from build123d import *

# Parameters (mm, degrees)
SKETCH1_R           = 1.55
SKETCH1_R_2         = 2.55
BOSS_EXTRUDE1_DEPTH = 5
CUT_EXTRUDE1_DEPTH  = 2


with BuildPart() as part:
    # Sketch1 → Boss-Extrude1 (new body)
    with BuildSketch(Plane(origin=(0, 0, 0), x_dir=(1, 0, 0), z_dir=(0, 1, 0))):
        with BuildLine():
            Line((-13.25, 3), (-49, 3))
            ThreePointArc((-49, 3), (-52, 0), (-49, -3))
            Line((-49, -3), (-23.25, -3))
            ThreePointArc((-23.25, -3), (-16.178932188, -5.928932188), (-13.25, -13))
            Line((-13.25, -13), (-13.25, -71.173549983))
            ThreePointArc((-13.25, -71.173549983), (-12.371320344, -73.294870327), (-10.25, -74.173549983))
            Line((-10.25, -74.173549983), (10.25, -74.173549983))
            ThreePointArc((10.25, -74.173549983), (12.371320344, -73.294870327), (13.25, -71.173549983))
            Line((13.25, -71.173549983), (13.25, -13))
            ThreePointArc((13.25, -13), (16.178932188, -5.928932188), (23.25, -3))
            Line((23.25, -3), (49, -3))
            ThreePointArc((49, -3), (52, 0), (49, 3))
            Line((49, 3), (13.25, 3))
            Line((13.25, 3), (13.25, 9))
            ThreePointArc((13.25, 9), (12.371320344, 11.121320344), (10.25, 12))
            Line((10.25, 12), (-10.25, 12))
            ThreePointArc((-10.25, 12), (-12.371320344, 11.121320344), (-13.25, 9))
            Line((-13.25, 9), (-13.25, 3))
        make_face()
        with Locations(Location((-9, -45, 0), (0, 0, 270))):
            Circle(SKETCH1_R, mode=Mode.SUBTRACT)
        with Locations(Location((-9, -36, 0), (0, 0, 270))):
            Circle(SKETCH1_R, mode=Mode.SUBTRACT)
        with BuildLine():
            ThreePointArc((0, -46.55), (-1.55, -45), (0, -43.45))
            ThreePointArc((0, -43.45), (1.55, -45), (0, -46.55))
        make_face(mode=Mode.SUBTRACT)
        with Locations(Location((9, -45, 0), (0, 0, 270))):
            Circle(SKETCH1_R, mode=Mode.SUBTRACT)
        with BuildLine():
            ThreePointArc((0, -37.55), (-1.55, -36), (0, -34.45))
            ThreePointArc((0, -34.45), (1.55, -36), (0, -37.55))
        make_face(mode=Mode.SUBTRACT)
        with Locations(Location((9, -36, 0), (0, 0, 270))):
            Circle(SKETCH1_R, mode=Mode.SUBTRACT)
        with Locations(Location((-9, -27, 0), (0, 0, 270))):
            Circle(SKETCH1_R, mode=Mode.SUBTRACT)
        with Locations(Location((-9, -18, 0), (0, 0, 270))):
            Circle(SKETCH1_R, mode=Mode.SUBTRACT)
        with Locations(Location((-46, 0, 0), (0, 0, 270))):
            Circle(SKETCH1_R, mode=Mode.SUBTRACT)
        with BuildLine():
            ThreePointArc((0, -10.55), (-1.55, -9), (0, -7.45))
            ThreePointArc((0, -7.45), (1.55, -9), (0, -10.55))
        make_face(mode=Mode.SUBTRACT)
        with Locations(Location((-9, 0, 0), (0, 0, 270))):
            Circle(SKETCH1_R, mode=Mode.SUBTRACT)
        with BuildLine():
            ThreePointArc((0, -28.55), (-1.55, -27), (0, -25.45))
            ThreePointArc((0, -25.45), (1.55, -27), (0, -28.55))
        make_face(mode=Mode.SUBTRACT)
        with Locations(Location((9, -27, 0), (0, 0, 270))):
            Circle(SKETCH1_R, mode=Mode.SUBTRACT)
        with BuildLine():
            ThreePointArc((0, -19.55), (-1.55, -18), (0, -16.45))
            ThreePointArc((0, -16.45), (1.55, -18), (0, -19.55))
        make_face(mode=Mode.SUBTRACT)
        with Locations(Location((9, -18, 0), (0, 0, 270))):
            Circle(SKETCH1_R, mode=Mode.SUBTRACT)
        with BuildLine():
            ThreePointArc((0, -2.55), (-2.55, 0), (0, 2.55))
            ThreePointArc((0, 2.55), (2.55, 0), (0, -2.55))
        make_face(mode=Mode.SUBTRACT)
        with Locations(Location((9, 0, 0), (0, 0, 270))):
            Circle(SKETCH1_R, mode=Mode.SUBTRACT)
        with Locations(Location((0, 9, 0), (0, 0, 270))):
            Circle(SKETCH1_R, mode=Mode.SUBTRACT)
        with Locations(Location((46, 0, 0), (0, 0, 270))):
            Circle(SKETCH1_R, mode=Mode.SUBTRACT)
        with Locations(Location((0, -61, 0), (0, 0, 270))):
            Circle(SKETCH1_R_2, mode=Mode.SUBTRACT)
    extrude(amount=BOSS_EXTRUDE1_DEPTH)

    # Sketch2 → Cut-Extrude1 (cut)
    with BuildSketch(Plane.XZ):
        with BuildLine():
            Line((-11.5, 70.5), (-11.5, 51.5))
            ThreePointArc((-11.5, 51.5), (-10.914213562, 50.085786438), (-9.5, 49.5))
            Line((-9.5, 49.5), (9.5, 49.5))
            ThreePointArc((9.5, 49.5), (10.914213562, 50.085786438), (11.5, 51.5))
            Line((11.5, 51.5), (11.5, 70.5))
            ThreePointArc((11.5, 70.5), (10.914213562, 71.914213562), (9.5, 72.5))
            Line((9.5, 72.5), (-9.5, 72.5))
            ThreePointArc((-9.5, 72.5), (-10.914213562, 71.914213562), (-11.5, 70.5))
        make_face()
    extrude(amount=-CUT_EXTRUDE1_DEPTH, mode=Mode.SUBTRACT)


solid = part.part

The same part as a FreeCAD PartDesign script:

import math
import FreeCAD as App
import Part
import Sketcher

V = App.Vector

doc = App.newDocument("Part")
body = doc.addObject("PartDesign::Body", "Body")

# Sketch on XZ plane
sketch1 = doc.addObject("Sketcher::SketchObject", "Sketch")
body.addObject(sketch1)
sketch1.AttachmentSupport = (doc.XZ_Plane, [""])
sketch1.MapMode = "FlatFace"
sketch1.addGeometry([
    Part.LineSegment(V(-13.2, -3, 0), V(-49, -3, 0)),  # 0
    Part.ArcOfCircle(Part.Circle(V(-49, 0, 0), V(0, 0, 1), 3), math.radians(90), math.radians(270)),  # 1
    Part.LineSegment(V(-49, 3, 0), V(-23.2, 3, 0)),  # 2
    Part.ArcOfCircle(Part.Circle(V(-23.2, 13, 0), V(0, 0, 1), 10), math.radians(-90), math.radians(0)),  # 3
    Part.LineSegment(V(-13.2, 13, 0), V(-13.2, 71.2, 0)),  # 4
    Part.ArcOfCircle(Part.Circle(V(-10.3, 71.2, 0), V(0, 0, 1), 3), math.radians(90), math.radians(180)),  # 5
    Part.LineSegment(V(-10.2, 74.2, 0), V(10.2, 74.2, 0)),  # 6
    Part.ArcOfCircle(Part.Circle(V(10.3, 71.2, 0), V(0, 0, 1), 3), math.radians(0), math.radians(90)),  # 7
    Part.LineSegment(V(13.2, 71.2, 0), V(13.2, 13, 0)),  # 8
    Part.ArcOfCircle(Part.Circle(V(23.2, 13, 0), V(0, 0, 1), 10), math.radians(180), math.radians(270)),  # 9
    Part.LineSegment(V(23.2, 3, 0), V(49, 3, 0)),  # 10
    Part.ArcOfCircle(Part.Circle(V(49, 0, 0), V(0, 0, 1), 3), math.radians(-90), math.radians(90)),  # 11
    Part.LineSegment(V(49, -3, 0), V(13.2, -3, 0)),  # 12
    Part.LineSegment(V(13.2, -3, 0), V(13.2, -9, 0)),  # 13
    Part.ArcOfCircle(Part.Circle(V(10.3, -9, 0), V(0, 0, 1), 3), math.radians(-90), math.radians(0)),  # 14
    Part.LineSegment(V(10.2, -12, 0), V(-10.2, -12, 0)),  # 15
    Part.ArcOfCircle(Part.Circle(V(-10.3, -9, 0), V(0, 0, 1), 3), math.radians(180), math.radians(270)),  # 16
    Part.LineSegment(V(-13.2, -9, 0), V(-13.2, -3, 0)),  # 17
    Part.Circle(V(-9, 45, 0), V(0, 0, 1), 1.6),  # 18
    Part.Circle(V(-9, 36, 0), V(0, 0, 1), 1.6),  # 19
    Part.Circle(V(-9, 27, 0), V(0, 0, 1), 1.6),  # 20
    Part.Circle(V(0, 61, 0), V(0, 0, 1), 2.5),  # 21
    Part.Circle(V(0, 45, 0), V(0, 0, 1), 1.6),  # 22
    Part.Circle(V(9, 45, 0), V(0, 0, 1), 1.6),  # 23
    Part.Circle(V(0, 36, 0), V(0, 0, 1), 1.6),  # 24
    Part.Circle(V(9, 36, 0), V(0, 0, 1), 1.6),  # 25
    Part.Circle(V(0, 27, 0), V(0, 0, 1), 1.6),  # 26
    Part.Circle(V(9, 27, 0), V(0, 0, 1), 1.6),  # 27
    Part.Circle(V(-9, 18, 0), V(0, 0, 1), 1.6),  # 28
    Part.Circle(V(-46, 0, 0), V(0, 0, 1), 1.6),  # 29
    Part.Circle(V(-9, 0, 0), V(0, 0, 1), 1.6),  # 30
    Part.Circle(V(0, 18, 0), V(0, 0, 1), 1.6),  # 31
    Part.Circle(V(9, 18, 0), V(0, 0, 1), 1.6),  # 32
    Part.Circle(V(0, 9, 0), V(0, 0, 1), 1.6),  # 33
    Part.Circle(V(0, 0, 0), V(0, 0, 1), 2.5),  # 34
    Part.Circle(V(9, 0, 0), V(0, 0, 1), 1.6),  # 35
    Part.Circle(V(0, -9, 0), V(0, 0, 1), 1.6),  # 36
    Part.Circle(V(46, 0, 0), V(0, 0, 1), 1.6),  # 37
], False)
sketch1.addConstraint([
    Sketcher.Constraint("Tangent", 0, 2, 1, 2),
    Sketcher.Constraint("Tangent", 1, 1, 2, 1),
    Sketcher.Constraint("Tangent", 2, 2, 3, 1),
    Sketcher.Constraint("Tangent", 3, 2, 4, 1),
    Sketcher.Constraint("Tangent", 4, 2, 5, 2),
    Sketcher.Constraint("Tangent", 5, 1, 6, 1),
    Sketcher.Constraint("Tangent", 6, 2, 7, 2),
    Sketcher.Constraint("Tangent", 7, 1, 8, 1),
    Sketcher.Constraint("Tangent", 8, 2, 9, 1),
    Sketcher.Constraint("Tangent", 9, 2, 10, 1),
    Sketcher.Constraint("Tangent", 10, 2, 11, 2),
    Sketcher.Constraint("Tangent", 11, 1, 12, 1),
    Sketcher.Constraint("Coincident", 12, 2, 13, 1),
    Sketcher.Constraint("Tangent", 13, 2, 14, 2),
    Sketcher.Constraint("Tangent", 14, 1, 15, 1),
    Sketcher.Constraint("Tangent", 15, 2, 16, 2),
    Sketcher.Constraint("Tangent", 16, 1, 17, 1),
    Sketcher.Constraint("Coincident", 17, 2, 0, 1),
    Sketcher.Constraint("Horizontal", 0),
    Sketcher.Constraint("Horizontal", 2),
    Sketcher.Constraint("Vertical", 4),
    Sketcher.Constraint("Horizontal", 6),
    Sketcher.Constraint("Vertical", 8),
    Sketcher.Constraint("Horizontal", 10),
    Sketcher.Constraint("Horizontal", 12),
    Sketcher.Constraint("Vertical", 13),
    Sketcher.Constraint("Horizontal", 15),
    Sketcher.Constraint("Vertical", 17),
    Sketcher.Constraint("Coincident", 34, 3, -1, 1),
    Sketcher.Constraint("Equal", 1, 5),
    Sketcher.Constraint("Equal", 5, 7),
    Sketcher.Constraint("Equal", 3, 9),
    Sketcher.Constraint("Equal", 7, 11),
    Sketcher.Constraint("Equal", 11, 14),
    Sketcher.Constraint("Equal", 14, 16),
    Sketcher.Constraint("Equal", 18, 19),
    Sketcher.Constraint("Equal", 19, 20),
    Sketcher.Constraint("Equal", 20, 22),
    Sketcher.Constraint("Equal", 22, 23),
    Sketcher.Constraint("Equal", 23, 24),
    Sketcher.Constraint("Equal", 24, 25),
    Sketcher.Constraint("Equal", 25, 26),
    Sketcher.Constraint("Equal", 26, 27),
    Sketcher.Constraint("Equal", 27, 28),
    Sketcher.Constraint("Equal", 28, 29),
    Sketcher.Constraint("Equal", 29, 30),
    Sketcher.Constraint("Equal", 30, 31),
    Sketcher.Constraint("Equal", 31, 32),
    Sketcher.Constraint("Equal", 32, 33),
    Sketcher.Constraint("Equal", 21, 34),
    Sketcher.Constraint("Equal", 33, 35),
    Sketcher.Constraint("Equal", 35, 36),
    Sketcher.Constraint("Equal", 36, 37),
    Sketcher.Constraint("Symmetric", 1, 3, 11, 3, -1, 1),
    Sketcher.Constraint("Symmetric", 30, 3, 35, 3, -1, 1),
    Sketcher.Constraint("Symmetric", 33, 3, 36, 3, -1, 1),
    Sketcher.Constraint("Symmetric", 29, 3, 37, 3, -1, 1),
    Sketcher.Constraint("Symmetric", 3, 3, 9, 3, -2),
    Sketcher.Constraint("Symmetric", 18, 3, 23, 3, -2),
    Sketcher.Constraint("Symmetric", 19, 3, 25, 3, -2),
    Sketcher.Constraint("Symmetric", 20, 3, 27, 3, -2),
    Sketcher.Constraint("Symmetric", 28, 3, 32, 3, -2),
    Sketcher.Constraint("PointOnObject", 21, 3, -2),
    Sketcher.Constraint("PointOnObject", 22, 3, -2),
    Sketcher.Constraint("PointOnObject", 24, 3, -2),
    Sketcher.Constraint("PointOnObject", 26, 3, -2),
    Sketcher.Constraint("PointOnObject", 29, 3, -1),
    Sketcher.Constraint("PointOnObject", 30, 3, -1),
    Sketcher.Constraint("PointOnObject", 31, 3, -2),
    Sketcher.Constraint("PointOnObject", 33, 3, -2),
    Sketcher.Constraint("Horizontal", 18, 3, 22, 3),
    Sketcher.Constraint("Horizontal", 19, 3, 24, 3),
    Sketcher.Constraint("Horizontal", 20, 3, 26, 3),
    Sketcher.Constraint("Horizontal", 28, 3, 31, 3),
    Sketcher.Constraint("Horizontal", 16, 3, 36, 3),
    Sketcher.Constraint("Vertical", 7, 3, 14, 3),
    Sketcher.Constraint("Vertical", 5, 3, 16, 3),
    Sketcher.Constraint("Vertical", 18, 3, 19, 3),
    Sketcher.Constraint("Vertical", 19, 3, 20, 3),
    Sketcher.Constraint("Vertical", 20, 3, 28, 3),
    Sketcher.Constraint("Vertical", 28, 3, 30, 3),
    Sketcher.Constraint("Radius", 1, 3.0),
    Sketcher.Constraint("Radius", 3, 10.0),
    Sketcher.Constraint("Diameter", 18, 3.1),
    Sketcher.Constraint("Diameter", 21, 5.1),
    Sketcher.Constraint("DistanceY", 13, 2, 13, 1, 6.0),
    Sketcher.Constraint("DistanceX", 6, 1, 6, 2, 20.5),
    Sketcher.Constraint("DistanceX", 1, 3, -1, 1, 49.0),
    Sketcher.Constraint("DistanceX", 18, 3, -1, 1, 9.0),
    Sketcher.Constraint("DistanceY", -1, 1, 18, 3, 45.0),
    Sketcher.Constraint("DistanceY", -1, 1, 19, 3, 36.0),
    Sketcher.Constraint("DistanceY", -1, 1, 20, 3, 27.0),
    Sketcher.Constraint("DistanceY", -1, 1, 21, 3, 61.0),
    Sketcher.Constraint("DistanceY", -1, 1, 28, 3, 18.0),
    Sketcher.Constraint("DistanceX", 29, 3, -1, 1, 46.0),
    Sketcher.Constraint("DistanceY", 4, 1, 4, 2, 58.17355),
])
pad1 = doc.addObject("PartDesign::Pad", "Pad")
body.addObject(pad1)
pad1.Profile = sketch1
pad1.Length = 5
pad1.Reversed = True

# Sketch on XZ plane
sketch2 = doc.addObject("Sketcher::SketchObject", "Sketch001")
body.addObject(sketch2)
sketch2.AttachmentSupport = (doc.XZ_Plane, [""])
sketch2.MapMode = "FlatFace"
sketch2.addGeometry([
    Part.LineSegment(V(-11.5, 70.5, 0), V(-11.5, 51.5, 0)),  # 0
    Part.ArcOfCircle(Part.Circle(V(-9.5, 51.5, 0), V(0, 0, 1), 2), math.radians(-180), math.radians(-90)),  # 1
    Part.LineSegment(V(-9.5, 49.5, 0), V(9.5, 49.5, 0)),  # 2
    Part.ArcOfCircle(Part.Circle(V(9.5, 51.5, 0), V(0, 0, 1), 2), math.radians(-90), math.radians(0)),  # 3
    Part.LineSegment(V(11.5, 51.5, 0), V(11.5, 70.5, 0)),  # 4
    Part.ArcOfCircle(Part.Circle(V(9.5, 70.5, 0), V(0, 0, 1), 2), math.radians(0), math.radians(90)),  # 5
    Part.LineSegment(V(9.5, 72.5, 0), V(-9.5, 72.5, 0)),  # 6
    Part.ArcOfCircle(Part.Circle(V(-9.5, 70.5, 0), V(0, 0, 1), 2), math.radians(90), math.radians(180)),  # 7
], False)
sketch2.addConstraint([
    Sketcher.Constraint("Tangent", 0, 2, 1, 1),
    Sketcher.Constraint("Tangent", 1, 2, 2, 1),
    Sketcher.Constraint("Tangent", 2, 2, 3, 1),
    Sketcher.Constraint("Tangent", 3, 2, 4, 1),
    Sketcher.Constraint("Tangent", 4, 2, 5, 1),
    Sketcher.Constraint("Tangent", 5, 2, 6, 1),
    Sketcher.Constraint("Tangent", 6, 2, 7, 1),
    Sketcher.Constraint("Tangent", 7, 2, 0, 1),
    Sketcher.Constraint("Vertical", 0),
    Sketcher.Constraint("Horizontal", 2),
    Sketcher.Constraint("Vertical", 4),
    Sketcher.Constraint("Horizontal", 6),
    Sketcher.Constraint("Equal", 1, 3),
    Sketcher.Constraint("Equal", 3, 5),
    Sketcher.Constraint("Equal", 5, 7),
    Sketcher.Constraint("Equal", 6, 0),
    Sketcher.Constraint("Radius", 1, 2.0),
    Sketcher.Constraint("DistanceX", 2, 1, 2, 2, 19.0),
    Sketcher.Constraint("DistanceX", 1, 3, -1, 1, 9.5),
    Sketcher.Constraint("DistanceY", -1, 1, 1, 3, 51.5),
])
pocket1 = doc.addObject("PartDesign::Pocket", "Pocket")
body.addObject(pocket1)
pocket1.Profile = sketch2
pocket1.Length = 2

doc.recompute()
